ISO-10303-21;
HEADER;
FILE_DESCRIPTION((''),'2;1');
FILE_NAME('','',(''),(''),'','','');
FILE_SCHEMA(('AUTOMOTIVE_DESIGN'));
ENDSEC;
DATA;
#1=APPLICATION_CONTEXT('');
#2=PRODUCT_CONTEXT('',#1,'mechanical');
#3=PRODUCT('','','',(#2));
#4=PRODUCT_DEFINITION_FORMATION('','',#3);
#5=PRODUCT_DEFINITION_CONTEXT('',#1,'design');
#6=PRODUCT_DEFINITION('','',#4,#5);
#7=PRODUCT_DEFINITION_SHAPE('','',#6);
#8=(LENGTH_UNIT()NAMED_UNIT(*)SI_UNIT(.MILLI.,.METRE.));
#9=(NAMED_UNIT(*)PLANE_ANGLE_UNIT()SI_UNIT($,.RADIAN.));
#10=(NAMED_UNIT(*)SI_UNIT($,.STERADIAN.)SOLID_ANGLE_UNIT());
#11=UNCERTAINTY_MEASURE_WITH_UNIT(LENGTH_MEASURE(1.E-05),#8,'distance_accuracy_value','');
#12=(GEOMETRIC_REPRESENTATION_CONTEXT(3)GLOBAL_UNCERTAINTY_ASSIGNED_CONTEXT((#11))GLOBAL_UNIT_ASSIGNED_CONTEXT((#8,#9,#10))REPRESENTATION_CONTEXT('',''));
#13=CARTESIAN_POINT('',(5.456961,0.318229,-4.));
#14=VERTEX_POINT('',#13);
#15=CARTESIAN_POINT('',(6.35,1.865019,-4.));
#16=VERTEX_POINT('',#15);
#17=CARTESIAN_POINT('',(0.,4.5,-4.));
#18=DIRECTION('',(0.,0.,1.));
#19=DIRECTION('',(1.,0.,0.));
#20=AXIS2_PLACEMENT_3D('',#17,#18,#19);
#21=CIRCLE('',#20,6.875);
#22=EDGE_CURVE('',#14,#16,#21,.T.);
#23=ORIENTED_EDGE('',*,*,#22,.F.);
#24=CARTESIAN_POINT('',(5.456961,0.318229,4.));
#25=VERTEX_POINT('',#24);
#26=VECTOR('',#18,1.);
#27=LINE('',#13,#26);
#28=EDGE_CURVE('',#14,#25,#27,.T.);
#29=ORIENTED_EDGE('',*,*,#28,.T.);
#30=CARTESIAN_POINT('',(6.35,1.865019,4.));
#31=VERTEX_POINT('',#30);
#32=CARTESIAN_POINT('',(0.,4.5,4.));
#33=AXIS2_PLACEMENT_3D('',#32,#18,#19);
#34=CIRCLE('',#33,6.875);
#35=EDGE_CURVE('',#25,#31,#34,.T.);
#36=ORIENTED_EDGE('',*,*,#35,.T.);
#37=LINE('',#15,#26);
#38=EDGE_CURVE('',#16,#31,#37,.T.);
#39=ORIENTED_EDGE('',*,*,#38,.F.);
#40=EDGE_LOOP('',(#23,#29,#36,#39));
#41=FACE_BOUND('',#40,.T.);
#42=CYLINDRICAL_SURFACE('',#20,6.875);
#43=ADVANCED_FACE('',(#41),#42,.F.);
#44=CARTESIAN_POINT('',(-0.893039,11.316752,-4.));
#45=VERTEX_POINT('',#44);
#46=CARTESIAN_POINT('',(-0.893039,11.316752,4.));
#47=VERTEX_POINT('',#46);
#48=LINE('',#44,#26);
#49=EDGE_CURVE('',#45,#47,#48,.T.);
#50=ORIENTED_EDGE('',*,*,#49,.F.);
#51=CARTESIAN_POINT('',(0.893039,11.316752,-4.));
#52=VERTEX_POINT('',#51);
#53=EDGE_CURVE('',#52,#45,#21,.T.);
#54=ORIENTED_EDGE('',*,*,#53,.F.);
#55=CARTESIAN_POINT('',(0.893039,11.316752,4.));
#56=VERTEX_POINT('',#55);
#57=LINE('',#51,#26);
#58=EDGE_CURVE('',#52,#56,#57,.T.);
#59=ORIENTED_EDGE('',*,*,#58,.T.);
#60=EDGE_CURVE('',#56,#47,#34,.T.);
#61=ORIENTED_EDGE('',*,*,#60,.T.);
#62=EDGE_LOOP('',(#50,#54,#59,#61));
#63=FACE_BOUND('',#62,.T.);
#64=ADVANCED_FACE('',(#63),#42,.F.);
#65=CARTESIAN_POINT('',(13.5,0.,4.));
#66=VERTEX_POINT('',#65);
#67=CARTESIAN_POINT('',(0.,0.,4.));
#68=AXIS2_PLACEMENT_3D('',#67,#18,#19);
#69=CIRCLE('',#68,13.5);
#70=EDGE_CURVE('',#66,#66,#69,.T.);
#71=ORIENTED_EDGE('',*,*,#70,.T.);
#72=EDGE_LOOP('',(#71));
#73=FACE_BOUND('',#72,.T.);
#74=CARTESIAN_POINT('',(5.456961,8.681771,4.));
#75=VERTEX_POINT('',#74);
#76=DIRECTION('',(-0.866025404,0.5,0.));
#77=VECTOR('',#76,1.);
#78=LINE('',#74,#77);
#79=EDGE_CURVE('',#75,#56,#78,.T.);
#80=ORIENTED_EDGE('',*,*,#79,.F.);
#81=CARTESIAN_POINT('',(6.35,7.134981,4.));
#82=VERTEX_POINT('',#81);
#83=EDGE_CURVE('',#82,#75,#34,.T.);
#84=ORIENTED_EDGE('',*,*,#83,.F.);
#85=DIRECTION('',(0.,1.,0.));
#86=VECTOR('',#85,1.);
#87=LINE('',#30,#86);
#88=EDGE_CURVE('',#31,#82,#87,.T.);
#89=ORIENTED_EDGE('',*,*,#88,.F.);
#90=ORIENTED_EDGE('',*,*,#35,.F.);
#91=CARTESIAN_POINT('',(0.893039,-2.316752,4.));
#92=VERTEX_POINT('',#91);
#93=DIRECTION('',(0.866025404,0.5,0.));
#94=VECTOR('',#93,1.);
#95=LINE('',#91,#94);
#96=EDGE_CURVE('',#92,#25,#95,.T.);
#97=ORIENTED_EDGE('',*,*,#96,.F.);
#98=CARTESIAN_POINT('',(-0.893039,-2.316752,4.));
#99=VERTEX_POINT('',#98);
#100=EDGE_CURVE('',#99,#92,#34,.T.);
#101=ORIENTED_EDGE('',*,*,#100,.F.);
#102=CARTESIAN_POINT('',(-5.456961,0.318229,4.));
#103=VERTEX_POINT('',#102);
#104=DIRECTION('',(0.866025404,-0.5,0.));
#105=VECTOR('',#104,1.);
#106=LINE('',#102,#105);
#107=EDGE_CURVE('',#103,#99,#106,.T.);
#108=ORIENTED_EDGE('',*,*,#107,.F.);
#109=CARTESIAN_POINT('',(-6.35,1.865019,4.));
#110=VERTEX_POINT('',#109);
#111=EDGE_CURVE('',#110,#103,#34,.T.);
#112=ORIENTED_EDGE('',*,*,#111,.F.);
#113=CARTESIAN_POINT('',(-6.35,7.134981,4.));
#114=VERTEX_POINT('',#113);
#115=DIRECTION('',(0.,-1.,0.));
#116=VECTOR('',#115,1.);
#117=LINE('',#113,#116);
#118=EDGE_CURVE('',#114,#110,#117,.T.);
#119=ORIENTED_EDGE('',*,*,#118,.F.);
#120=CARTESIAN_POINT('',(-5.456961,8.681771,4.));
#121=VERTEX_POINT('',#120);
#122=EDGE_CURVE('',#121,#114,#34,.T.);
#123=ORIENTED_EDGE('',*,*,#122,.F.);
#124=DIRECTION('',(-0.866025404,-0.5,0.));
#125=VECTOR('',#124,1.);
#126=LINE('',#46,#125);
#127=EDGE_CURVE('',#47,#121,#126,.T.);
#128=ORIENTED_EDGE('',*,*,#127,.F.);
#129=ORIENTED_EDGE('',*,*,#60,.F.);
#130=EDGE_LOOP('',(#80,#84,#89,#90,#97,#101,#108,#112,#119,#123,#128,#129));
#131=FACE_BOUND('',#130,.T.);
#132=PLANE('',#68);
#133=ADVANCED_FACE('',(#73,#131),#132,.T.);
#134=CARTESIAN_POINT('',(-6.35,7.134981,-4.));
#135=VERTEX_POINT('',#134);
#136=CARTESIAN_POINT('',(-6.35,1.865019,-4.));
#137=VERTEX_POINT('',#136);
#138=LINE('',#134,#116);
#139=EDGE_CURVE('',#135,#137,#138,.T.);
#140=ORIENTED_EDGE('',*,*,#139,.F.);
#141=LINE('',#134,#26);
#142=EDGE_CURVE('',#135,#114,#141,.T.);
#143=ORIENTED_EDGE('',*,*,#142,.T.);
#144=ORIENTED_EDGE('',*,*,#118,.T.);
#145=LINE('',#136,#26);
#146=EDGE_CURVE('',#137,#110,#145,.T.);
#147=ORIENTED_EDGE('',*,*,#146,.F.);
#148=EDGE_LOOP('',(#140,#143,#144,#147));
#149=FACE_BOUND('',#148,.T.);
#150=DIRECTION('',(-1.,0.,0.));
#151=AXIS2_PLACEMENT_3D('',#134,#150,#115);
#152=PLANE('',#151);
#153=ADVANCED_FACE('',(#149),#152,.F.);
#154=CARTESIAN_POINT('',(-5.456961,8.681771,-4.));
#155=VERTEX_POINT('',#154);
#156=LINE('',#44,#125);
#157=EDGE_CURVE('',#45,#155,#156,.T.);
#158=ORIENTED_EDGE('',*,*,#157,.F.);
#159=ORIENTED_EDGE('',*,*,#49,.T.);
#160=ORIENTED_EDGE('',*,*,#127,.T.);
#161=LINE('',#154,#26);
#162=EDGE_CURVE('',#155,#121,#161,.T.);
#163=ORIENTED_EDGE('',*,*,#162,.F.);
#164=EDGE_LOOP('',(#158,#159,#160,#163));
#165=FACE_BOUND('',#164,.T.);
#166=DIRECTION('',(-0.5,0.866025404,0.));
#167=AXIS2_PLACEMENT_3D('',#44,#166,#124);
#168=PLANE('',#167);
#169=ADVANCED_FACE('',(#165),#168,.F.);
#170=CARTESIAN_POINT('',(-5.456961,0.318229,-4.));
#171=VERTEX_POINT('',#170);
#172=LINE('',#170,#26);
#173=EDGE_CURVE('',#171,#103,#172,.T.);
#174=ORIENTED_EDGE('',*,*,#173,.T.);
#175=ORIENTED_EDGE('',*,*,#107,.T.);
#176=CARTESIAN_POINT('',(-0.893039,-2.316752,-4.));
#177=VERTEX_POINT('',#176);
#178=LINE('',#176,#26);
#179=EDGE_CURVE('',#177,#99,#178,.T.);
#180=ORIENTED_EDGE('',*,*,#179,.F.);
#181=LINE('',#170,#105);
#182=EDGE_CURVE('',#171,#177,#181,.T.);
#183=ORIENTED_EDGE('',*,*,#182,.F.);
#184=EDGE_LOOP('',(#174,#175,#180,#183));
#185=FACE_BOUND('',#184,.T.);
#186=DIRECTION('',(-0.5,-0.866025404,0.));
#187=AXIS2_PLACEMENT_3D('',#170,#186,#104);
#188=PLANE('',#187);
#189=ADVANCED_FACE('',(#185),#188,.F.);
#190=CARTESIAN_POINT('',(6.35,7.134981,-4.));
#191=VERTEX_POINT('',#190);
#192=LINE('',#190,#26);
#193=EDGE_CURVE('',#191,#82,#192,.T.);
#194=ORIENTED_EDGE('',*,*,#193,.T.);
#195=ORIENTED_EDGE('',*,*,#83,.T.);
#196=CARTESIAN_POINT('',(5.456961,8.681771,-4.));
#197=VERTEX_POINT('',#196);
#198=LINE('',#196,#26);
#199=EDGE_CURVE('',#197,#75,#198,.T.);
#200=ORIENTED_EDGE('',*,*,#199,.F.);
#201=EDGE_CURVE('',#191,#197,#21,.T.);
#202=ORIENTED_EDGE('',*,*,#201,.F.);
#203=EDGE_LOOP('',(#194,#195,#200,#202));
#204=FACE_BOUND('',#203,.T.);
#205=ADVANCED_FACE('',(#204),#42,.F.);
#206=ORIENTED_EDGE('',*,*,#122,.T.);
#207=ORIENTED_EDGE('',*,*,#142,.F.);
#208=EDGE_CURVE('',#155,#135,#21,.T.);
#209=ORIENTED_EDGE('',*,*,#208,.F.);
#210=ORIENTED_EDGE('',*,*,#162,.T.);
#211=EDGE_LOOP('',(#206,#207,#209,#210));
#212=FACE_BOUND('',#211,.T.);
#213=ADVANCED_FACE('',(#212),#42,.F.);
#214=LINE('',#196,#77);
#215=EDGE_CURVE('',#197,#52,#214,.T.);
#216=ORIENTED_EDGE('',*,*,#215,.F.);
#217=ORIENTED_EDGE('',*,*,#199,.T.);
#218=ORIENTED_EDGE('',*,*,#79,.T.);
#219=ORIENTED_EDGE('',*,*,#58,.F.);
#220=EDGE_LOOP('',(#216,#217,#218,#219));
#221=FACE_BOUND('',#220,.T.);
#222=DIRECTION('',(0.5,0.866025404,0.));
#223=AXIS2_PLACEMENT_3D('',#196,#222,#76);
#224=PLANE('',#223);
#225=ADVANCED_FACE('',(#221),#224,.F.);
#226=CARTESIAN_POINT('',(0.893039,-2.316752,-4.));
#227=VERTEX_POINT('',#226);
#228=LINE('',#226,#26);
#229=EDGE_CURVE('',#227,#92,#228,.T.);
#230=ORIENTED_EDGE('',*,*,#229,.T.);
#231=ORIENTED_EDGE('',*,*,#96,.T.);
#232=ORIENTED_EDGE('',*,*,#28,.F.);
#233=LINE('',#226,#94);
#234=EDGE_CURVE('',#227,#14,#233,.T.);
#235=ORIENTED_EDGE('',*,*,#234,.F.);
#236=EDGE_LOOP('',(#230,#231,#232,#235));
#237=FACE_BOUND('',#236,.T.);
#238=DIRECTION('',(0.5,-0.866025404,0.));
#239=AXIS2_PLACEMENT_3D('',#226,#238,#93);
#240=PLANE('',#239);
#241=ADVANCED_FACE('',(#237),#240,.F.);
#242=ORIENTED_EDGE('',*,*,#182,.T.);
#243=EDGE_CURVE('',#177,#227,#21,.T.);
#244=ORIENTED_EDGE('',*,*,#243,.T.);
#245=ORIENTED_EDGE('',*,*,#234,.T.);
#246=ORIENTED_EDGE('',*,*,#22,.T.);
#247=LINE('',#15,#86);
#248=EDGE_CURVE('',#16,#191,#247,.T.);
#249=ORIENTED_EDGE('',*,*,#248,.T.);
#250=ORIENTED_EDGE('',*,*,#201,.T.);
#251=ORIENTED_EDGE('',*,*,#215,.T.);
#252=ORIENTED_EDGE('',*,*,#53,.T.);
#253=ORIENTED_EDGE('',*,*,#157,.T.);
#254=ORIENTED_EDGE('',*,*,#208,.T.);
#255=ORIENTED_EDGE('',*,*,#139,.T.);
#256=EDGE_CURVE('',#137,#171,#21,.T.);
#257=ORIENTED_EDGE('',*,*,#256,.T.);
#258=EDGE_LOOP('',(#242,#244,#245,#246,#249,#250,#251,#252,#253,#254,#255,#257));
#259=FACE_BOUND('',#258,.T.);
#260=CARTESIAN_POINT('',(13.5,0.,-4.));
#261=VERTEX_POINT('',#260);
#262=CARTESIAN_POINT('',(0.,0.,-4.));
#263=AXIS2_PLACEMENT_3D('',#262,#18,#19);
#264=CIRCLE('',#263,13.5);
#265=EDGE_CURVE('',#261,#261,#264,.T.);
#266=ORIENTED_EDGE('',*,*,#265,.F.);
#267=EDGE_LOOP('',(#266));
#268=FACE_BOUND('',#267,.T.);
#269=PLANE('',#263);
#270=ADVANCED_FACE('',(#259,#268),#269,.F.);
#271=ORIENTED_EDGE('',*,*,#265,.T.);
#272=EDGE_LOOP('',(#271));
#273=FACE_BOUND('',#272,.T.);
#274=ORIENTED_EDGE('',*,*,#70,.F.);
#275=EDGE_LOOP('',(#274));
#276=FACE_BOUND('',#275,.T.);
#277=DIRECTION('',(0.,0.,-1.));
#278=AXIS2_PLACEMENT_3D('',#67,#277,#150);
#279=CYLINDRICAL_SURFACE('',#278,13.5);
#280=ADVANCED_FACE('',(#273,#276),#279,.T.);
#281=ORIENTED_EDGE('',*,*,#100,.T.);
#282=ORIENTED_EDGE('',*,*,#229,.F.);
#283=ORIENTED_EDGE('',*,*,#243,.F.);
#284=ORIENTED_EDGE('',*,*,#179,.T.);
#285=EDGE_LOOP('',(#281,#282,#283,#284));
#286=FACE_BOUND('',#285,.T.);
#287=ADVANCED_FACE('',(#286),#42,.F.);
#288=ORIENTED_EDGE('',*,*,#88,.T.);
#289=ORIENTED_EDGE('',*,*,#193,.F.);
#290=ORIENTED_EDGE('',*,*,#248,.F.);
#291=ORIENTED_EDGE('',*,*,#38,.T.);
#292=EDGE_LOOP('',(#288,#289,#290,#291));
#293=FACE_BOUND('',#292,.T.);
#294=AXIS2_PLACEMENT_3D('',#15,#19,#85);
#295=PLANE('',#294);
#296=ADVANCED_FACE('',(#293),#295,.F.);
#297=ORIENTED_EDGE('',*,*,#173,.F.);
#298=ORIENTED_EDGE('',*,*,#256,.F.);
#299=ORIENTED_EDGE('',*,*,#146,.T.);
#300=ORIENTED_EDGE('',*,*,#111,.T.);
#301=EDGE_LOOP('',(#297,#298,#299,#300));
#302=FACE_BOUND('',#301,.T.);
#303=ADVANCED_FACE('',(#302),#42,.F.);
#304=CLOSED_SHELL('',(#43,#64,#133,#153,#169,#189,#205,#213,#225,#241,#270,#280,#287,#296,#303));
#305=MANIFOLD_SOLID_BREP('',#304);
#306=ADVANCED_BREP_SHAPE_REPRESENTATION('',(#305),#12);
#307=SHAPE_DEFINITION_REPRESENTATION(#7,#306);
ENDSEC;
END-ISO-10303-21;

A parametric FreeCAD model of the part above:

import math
import FreeCAD as App
import Part
import Sketcher

V = App.Vector
Q = App.Units.Quantity

doc = App.newDocument("Part")
body = doc.addObject("PartDesign::Body", "Body")

# Sketch on XY plane
sketch1 = doc.addObject("Sketcher::SketchObject", "Sketch")
body.addObject(sketch1)
sketch1.AttachmentSupport = (doc.XY_Plane, [""])
sketch1.MapMode = "FlatFace"
sketch1.addGeometry(Part.Circle(V(0, 0, 0), V(0, 0, 1), 14), False)
sketch1.addConstraint([
    Sketcher.Constraint("Coincident", 0, 3, -1, 1),
    Sketcher.Constraint("Diameter", 0, Q("27 mm")),
])
pad1 = doc.addObject("PartDesign::Pad", "Pad")
body.addObject(pad1)
pad1.Profile = sketch1
pad1.Length = 8
pad1.Midplane = True

# Sketch on XY plane
sketch2 = doc.addObject("Sketcher::SketchObject", "Sketch001")
body.addObject(sketch2)
sketch2.AttachmentSupport = (doc.XY_Plane, [""])
sketch2.MapMode = "FlatFace"
sketch2.AttachmentOffset = App.Placement(V(0, 0, 4), App.Rotation())
sketch2.addGeometry([
    Part.LineSegment(V(-0.9, 11.3, 0), V(-5.5, 8.7, 0)),  # 0
    Part.ArcOfCircle(Part.Circle(V(0, 4.5, 0), V(0, 0, 1), 6.9), math.radians(142.54), math.radians(157.46)),  # 1
    Part.LineSegment(V(-6.3, 7.1, 0), V(-6.3, 1.9, 0)),  # 2
    Part.ArcOfCircle(Part.Circle(V(0, 4.5, 0), V(0, 0, 1), 6.9), math.radians(-157.46), math.radians(-142.54)),  # 3
    Part.LineSegment(V(-5.5, 0.3, 0), V(-0.9, -2.3, 0)),  # 4
    Part.ArcOfCircle(Part.Circle(V(0, 4.5, 0), V(0, 0, 1), 6.9), math.radians(-97.46), math.radians(-82.54)),  # 5
    Part.LineSegment(V(0.9, -2.3, 0), V(5.5, 0.3, 0)),  # 6
    Part.ArcOfCircle(Part.Circle(V(0, 4.5, 0), V(0, 0, 1), 6.9), math.radians(-37.46), math.radians(-22.54)),  # 7
    Part.LineSegment(V(6.3, 1.9, 0), V(6.3, 7.1, 0)),  # 8
    Part.ArcOfCircle(Part.Circle(V(0, 4.5, 0), V(0, 0, 1), 6.9), math.radians(22.54), math.radians(37.46)),  # 9
    Part.LineSegment(V(5.5, 8.7, 0), V(0.9, 11.3, 0)),  # 10
    Part.ArcOfCircle(Part.Circle(V(0, 4.5, 0), V(0, 0, 1), 6.9), math.radians(82.54), math.radians(97.46)),  # 11
], False)
sketch2.addConstraint([
    Sketcher.Constraint("Coincident", 0, 2, 1, 1),
    Sketcher.Constraint("Coincident", 1, 2, 2, 1),
    Sketcher.Constraint("Coincident", 2, 2, 3, 1),
    Sketcher.Constraint("Coincident", 3, 2, 4, 1),
    Sketcher.Constraint("Coincident", 4, 2, 5, 1),
    Sketcher.Constraint("Coincident", 5, 2, 6, 1),
    Sketcher.Constraint("Coincident", 6, 2, 7, 1),
    Sketcher.Constraint("Coincident", 7, 2, 8, 1),
    Sketcher.Constraint("Coincident", 8, 2, 9, 1),
    Sketcher.Constraint("Coincident", 9, 2, 10, 1),
    Sketcher.Constraint("Coincident", 10, 2, 11, 1),
    Sketcher.Constraint("Coincident", 11, 2, 0, 1),
    Sketcher.Constraint("Vertical", 2),
    Sketcher.Constraint("Vertical", 8),
    Sketcher.Constraint("Coincident", 3, 3, 1, 3),
    Sketcher.Constraint("Coincident", 5, 3, 1, 3),
    Sketcher.Constraint("Coincident", 7, 3, 1, 3),
    Sketcher.Constraint("Coincident", 9, 3, 1, 3),
    Sketcher.Constraint("Coincident", 11, 3, 1, 3),
    Sketcher.Constraint("Equal", 1, 3),
    Sketcher.Constraint("Equal", 3, 5),
    Sketcher.Constraint("Equal", 5, 7),
    Sketcher.Constraint("Equal", 7, 9),
    Sketcher.Constraint("Equal", 9, 11),
    Sketcher.Constraint("Symmetric", 4, 2, 5, 2, -2),
    Sketcher.Constraint("Parallel", 0, 6),
    Sketcher.Constraint("Parallel", 4, 10),
    Sketcher.Constraint("Horizontal", 3, 2, 6, 2),
    Sketcher.Constraint("Horizontal", 2, 2, 7, 2),
    Sketcher.Constraint("Horizontal", 0, 2, 9, 2),
    Sketcher.Constraint("Vertical", 0, 2, 3, 2),
    Sketcher.Constraint("Angle", 0, Q("-150 deg")),
    Sketcher.Constraint("Radius", 1, Q("6.875 mm")),
    Sketcher.Constraint("DistanceY", -1, 1, 1, 3, Q("4.5 mm")),
    Sketcher.Constraint("DistanceX", 1, 2, -1, 1, Q("6.35 mm")),
    Sketcher.Constraint("DistanceX", 3, 2, 5, 2, Q("6.35 mm")),
])
pocket1 = doc.addObject("PartDesign::Pocket", "Pocket")
body.addObject(pocket1)
pocket1.Profile = sketch2
pocket1.Type = "ThroughAll"

doc.recompute()
